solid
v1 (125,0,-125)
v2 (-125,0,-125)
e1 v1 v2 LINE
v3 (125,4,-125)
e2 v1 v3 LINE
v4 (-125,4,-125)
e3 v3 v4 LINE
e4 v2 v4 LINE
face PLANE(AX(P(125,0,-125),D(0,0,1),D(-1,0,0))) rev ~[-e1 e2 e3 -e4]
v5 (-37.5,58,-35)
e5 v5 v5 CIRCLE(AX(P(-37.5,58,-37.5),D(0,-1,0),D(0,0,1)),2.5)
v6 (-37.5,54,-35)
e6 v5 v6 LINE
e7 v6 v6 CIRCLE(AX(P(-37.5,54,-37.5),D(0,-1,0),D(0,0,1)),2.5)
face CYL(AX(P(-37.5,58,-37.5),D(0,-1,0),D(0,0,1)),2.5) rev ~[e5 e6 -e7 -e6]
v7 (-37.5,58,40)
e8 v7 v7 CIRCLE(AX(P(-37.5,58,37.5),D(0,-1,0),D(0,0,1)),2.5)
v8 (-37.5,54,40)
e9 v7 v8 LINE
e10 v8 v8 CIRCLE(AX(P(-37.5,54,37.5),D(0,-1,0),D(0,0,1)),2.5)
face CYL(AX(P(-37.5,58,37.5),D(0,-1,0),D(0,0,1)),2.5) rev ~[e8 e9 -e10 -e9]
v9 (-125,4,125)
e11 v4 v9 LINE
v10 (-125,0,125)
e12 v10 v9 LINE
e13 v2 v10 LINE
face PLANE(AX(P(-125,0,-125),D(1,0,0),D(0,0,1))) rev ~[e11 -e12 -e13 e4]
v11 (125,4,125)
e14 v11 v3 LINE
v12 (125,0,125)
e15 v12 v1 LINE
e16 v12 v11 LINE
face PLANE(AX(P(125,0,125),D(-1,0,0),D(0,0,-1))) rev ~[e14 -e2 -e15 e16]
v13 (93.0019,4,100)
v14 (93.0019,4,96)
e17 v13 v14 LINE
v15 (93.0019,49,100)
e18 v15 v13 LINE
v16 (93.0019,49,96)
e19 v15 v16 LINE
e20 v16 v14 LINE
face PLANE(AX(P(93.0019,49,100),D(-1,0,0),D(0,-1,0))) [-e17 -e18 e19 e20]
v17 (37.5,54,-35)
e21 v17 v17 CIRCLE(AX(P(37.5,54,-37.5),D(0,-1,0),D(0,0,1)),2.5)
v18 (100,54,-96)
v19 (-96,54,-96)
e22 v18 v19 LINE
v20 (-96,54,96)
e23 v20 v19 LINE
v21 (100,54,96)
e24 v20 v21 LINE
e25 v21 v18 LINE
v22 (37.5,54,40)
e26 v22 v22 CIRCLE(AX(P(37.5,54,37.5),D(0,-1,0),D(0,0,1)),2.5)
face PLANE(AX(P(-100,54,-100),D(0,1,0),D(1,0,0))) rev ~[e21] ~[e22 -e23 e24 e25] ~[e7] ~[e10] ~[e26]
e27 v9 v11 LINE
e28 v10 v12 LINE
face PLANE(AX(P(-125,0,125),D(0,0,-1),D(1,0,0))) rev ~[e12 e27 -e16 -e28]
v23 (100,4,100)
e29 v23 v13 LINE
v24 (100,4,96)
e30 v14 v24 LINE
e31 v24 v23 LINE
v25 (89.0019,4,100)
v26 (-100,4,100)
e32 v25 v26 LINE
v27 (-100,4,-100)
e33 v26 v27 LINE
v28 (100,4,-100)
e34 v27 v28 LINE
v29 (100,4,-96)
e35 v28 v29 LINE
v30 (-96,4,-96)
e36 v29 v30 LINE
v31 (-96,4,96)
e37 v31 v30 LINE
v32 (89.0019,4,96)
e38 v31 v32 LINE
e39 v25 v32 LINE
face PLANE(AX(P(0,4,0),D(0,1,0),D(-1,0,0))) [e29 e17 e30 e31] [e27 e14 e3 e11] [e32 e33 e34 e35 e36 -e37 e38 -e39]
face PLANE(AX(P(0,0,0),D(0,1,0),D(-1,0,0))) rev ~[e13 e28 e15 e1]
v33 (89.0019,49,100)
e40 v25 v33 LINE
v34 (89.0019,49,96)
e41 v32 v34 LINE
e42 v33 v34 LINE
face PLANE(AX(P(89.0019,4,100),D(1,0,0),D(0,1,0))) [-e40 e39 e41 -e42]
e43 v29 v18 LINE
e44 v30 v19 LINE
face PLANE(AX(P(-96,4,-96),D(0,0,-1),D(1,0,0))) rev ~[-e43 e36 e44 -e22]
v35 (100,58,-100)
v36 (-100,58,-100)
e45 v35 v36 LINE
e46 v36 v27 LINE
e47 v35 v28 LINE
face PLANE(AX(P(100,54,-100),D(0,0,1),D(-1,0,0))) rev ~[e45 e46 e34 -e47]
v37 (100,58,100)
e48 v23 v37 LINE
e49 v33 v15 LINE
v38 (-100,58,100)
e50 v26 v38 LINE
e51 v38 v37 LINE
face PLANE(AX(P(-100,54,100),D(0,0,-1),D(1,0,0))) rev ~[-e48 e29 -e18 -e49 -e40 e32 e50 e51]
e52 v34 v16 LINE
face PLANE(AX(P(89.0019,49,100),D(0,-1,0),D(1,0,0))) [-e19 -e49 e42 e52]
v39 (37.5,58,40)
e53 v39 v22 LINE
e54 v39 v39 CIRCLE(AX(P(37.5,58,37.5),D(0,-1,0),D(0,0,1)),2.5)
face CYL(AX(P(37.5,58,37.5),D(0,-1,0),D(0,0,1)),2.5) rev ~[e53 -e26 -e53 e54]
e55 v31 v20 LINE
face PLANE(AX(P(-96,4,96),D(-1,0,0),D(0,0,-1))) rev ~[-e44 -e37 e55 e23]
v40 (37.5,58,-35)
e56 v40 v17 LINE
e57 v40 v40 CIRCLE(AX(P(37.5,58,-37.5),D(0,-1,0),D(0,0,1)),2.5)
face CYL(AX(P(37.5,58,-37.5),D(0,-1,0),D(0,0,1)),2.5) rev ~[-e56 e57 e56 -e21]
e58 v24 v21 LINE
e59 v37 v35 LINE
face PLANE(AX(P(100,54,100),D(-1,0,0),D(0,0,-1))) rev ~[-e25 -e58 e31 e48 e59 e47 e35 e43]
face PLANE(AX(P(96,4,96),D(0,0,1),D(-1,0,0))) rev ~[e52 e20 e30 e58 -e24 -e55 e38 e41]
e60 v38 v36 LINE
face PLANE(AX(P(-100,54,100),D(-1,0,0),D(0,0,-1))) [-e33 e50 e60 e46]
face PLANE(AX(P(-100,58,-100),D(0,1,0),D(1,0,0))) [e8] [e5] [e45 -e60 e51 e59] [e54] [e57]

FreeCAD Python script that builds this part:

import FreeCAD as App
import Part
import Sketcher
from FreeCAD import Vector
Q = App.Units.Quantity

doc = App.newDocument("Part")
body = doc.addObject("PartDesign::Body", "Body")

sketch1 = body.newObject("Sketcher::SketchObject", "Sketch")
sketch1.AttachmentSupport = (doc.getObject("XZ_Plane"), [""])
sketch1.MapMode = "FlatFace"
sketch1.addGeometry(Part.LineSegment(Vector(125, 125, 0), Vector(125, -125, 0)), False)
sketch1.addGeometry(Part.LineSegment(Vector(125, -125, 0), Vector(-125, -125, 0)), False)
sketch1.addGeometry(Part.LineSegment(Vector(-125, -125, 0), Vector(-125, 125, 0)), False)
sketch1.addGeometry(Part.LineSegment(Vector(-125, 125, 0), Vector(125, 125, 0)), False)
sketch1.addConstraint(Sketcher.Constraint("Coincident", 0, 2, 1, 1))
sketch1.addConstraint(Sketcher.Constraint("Coincident", 1, 2, 2, 1))
sketch1.addConstraint(Sketcher.Constraint("Coincident", 2, 2, 3, 1))
sketch1.addConstraint(Sketcher.Constraint("Coincident", 3, 2, 0, 1))
sketch1.addConstraint(Sketcher.Constraint("Vertical", 0))
sketch1.addConstraint(Sketcher.Constraint("Horizontal", 1))
sketch1.addConstraint(Sketcher.Constraint("Vertical", 2))
sketch1.addConstraint(Sketcher.Constraint("Horizontal", 3))
sketch1.addConstraint(Sketcher.Constraint("Symmetric", 0, 2, 2, 2, -1, 1))
sketch1.addConstraint(Sketcher.Constraint("Equal", 3, 0))
sketch1.addConstraint(Sketcher.Constraint("DistanceX", 1, 2, 1, 1, Q("250 mm")))
pad1 = body.newObject("PartDesign::Pad", "Pad")
pad1.Profile = sketch1
pad1.Length = 4
pad1.Reversed = True

sketch2 = body.newObject("Sketcher::SketchObject", "Sketch001")
sketch2.AttachmentSupport = (doc.getObject("XZ_Plane"), [""])
sketch2.MapMode = "FlatFace"
sketch2.AttachmentOffset = App.Placement(Vector(0, 0, -4), App.Rotation())
sketch2.addGeometry(Part.LineSegment(Vector(100, 96, 0), Vector(-96, 96, 0)), False)
sketch2.addGeometry(Part.LineSegment(Vector(-96, 96, 0), Vector(-96, -96, 0)), False)
sketch2.addGeometry(Part.LineSegment(Vector(-96, -96, 0), Vector(100, -96, 0)), False)
sketch2.addGeometry(Part.LineSegment(Vector(100, -96, 0), Vector(100, -100, 0)), False)
sketch2.addGeometry(Part.LineSegment(Vector(100, -100, 0), Vector(-100, -100, 0)), False)
sketch2.addGeometry(Part.LineSegment(Vector(-100, -100, 0), Vector(-100, 100, 0)), False)
sketch2.addGeometry(Part.LineSegment(Vector(-100, 100, 0), Vector(100, 100, 0)), False)
sketch2.addGeometry(Part.LineSegment(Vector(100, 100, 0), Vector(100, 96, 0)), False)
sketch2.addConstraint(Sketcher.Constraint("Coincident", 0, 2, 1, 1))
sketch2.addConstraint(Sketcher.Constraint("Coincident", 1, 2, 2, 1))
sketch2.addConstraint(Sketcher.Constraint("Coincident", 2, 2, 3, 1))
sketch2.addConstraint(Sketcher.Constraint("Coincident", 3, 2, 4, 1))
sketch2.addConstraint(Sketcher.Constraint("Coincident", 4, 2, 5, 1))
sketch2.addConstraint(Sketcher.Constraint("Coincident", 5, 2, 6, 1))
sketch2.addConstraint(Sketcher.Constraint("Coincident", 6, 2, 7, 1))
sketch2.addConstraint(Sketcher.Constraint("Coincident", 7, 2, 0, 1))
sketch2.addConstraint(Sketcher.Constraint("Horizontal", 0))
sketch2.addConstraint(Sketcher.Constraint("Vertical", 1))
sketch2.addConstraint(Sketcher.Constraint("Horizontal", 2))
sketch2.addConstraint(Sketcher.Constraint("Vertical", 3))
sketch2.addConstraint(Sketcher.Constraint("Horizontal", 4))
sketch2.addConstraint(Sketcher.Constraint("Vertical", 5))
sketch2.addConstraint(Sketcher.Constraint("Horizontal", 6))
sketch2.addConstraint(Sketcher.Constraint("Vertical", 7))
sketch2.addConstraint(Sketcher.Constraint("Symmetric", 3, 2, 5, 2, -1, 1))
sketch2.addConstraint(Sketcher.Constraint("Symmetric", 2, 2, 7, 2, -1))
sketch2.addConstraint(Sketcher.Constraint("Equal", 6, 5))
sketch2.addConstraint(Sketcher.Constraint("DistanceX", 4, 2, 4, 1, Q("200 mm")))
sketch2.addConstraint(Sketcher.Constraint("DistanceY", 1, 2, 1, 1, Q("192 mm")))
sketch2.addConstraint(Sketcher.Constraint("DistanceX", 0, 2, 0, 1, Q("196 mm")))
pad2 = body.newObject("PartDesign::Pad", "Pad001")
pad2.Profile = sketch2
pad2.Length = 50
pad2.Reversed = True

sketch3 = body.newObject("Sketcher::SketchObject", "Sketch002")
sketch3.AttachmentSupport = (doc.getObject("XZ_Plane"), [""])
sketch3.MapMode = "FlatFace"
sketch3.AttachmentOffset = App.Placement(Vector(0, 0, -4), App.Rotation())
sketch3.addGeometry(Part.LineSegment(Vector(97, 96, 0), Vector(97, -96, 0)), False)
sketch3.addGeometry(Part.LineSegment(Vector(97, -96, 0), Vector(93, -96, 0)), False)
sketch3.addGeometry(Part.LineSegment(Vector(93, -96, 0), Vector(93, 96, 0)), False)
sketch3.addGeometry(Part.LineSegment(Vector(93, 96, 0), Vector(97, 96, 0)), False)
sketch3.addGeometry(Part.LineSegment(Vector(89, 96, 0), Vector(89, -96, 0)), False)
sketch3.addGeometry(Part.LineSegment(Vector(89, -96, 0), Vector(85, -96, 0)), False)
sketch3.addGeometry(Part.LineSegment(Vector(85, -96, 0), Vector(85, 96, 0)), False)
sketch3.addGeometry(Part.LineSegment(Vector(85, 96, 0), Vector(89, 96, 0)), False)
sketch3.addConstraint(Sketcher.Constraint("Coincident", 0, 2, 1, 1))
sketch3.addConstraint(Sketcher.Constraint("Coincident", 1, 2, 2, 1))
sketch3.addConstraint(Sketcher.Constraint("Coincident", 2, 2, 3, 1))
sketch3.addConstraint(Sketcher.Constraint("Coincident", 3, 2, 0, 1))
sketch3.addConstraint(Sketcher.Constraint("Coincident", 4, 2, 5, 1))
sketch3.addConstraint(Sketcher.Constraint("Coincident", 5, 2, 6, 1))
sketch3.addConstraint(Sketcher.Constraint("Coincident", 6, 2, 7, 1))
sketch3.addConstraint(Sketcher.Constraint("Coincident", 7, 2, 4, 1))
sketch3.addConstraint(Sketcher.Constraint("Vertical", 0))
sketch3.addConstraint(Sketcher.Constraint("Horizontal", 1))
sketch3.addConstraint(Sketcher.Constraint("Vertical", 2))
sketch3.addConstraint(Sketcher.Constraint("Horizontal", 3))
sketch3.addConstraint(Sketcher.Constraint("Vertical", 4))
sketch3.addConstraint(Sketcher.Constraint("Horizontal", 5))
sketch3.addConstraint(Sketcher.Constraint("Vertical", 6))
sketch3.addConstraint(Sketcher.Constraint("Horizontal", 7))
sketch3.addConstraint(Sketcher.Constraint("Horizontal", 1, 2, 4, 2))
sketch3.addConstraint(Sketcher.Constraint("Horizontal", 3, 2, 6, 2))
sketch3.addConstraint(Sketcher.Constraint("Equal", 3, 5))
sketch3.addConstraint(Sketcher.Constraint("DistanceX", 1, 2, 1, 1, Q("4 mm")))
sketch3.addConstraint(Sketcher.Constraint("DistanceX", 4, 2, 1, 2, Q("4 mm")))
sketch3.addConstraint(Sketcher.Constraint("DistanceY", 0, 2, 0, 1, Q("192 mm")))
sketch3.addConstraint(Sketcher.Constraint("DistanceX", -1, 1, 0, 2, Q("97 mm")))
sketch3.addConstraint(Sketcher.Constraint("DistanceY", 0, 2, -1, 1, Q("96 mm")))
pocket1 = body.newObject("PartDesign::Pocket", "Pocket")
pocket1.Profile = sketch3
pocket1.Length = 2

sketch4 = body.newObject("Sketcher::SketchObject", "Sketch003")
sketch4.AttachmentSupport = (doc.getObject("XY_Plane"), [""])
sketch4.MapMode = "FlatFace"
sketch4.AttachmentOffset = App.Placement(Vector(0, 0, 100), App.Rotation())
sketch4.addGeometry(Part.LineSegment(Vector(89, 49, 0), Vector(89, 4, 0)), False)
sketch4.addGeometry(Part.LineSegment(Vector(89, 4, 0), Vector(93, 4, 0)), False)
sketch4.addGeometry(Part.LineSegment(Vector(93, 4, 0), Vector(93, 49, 0)), False)
sketch4.addGeometry(Part.LineSegment(Vector(93, 49, 0), Vector(89, 49, 0)), False)
sketch4.addConstraint(Sketcher.Constraint("Coincident", 0, 2, 1, 1))
sketch4.addConstraint(Sketcher.Constraint("Coincident", 1, 2, 2, 1))
sketch4.addConstraint(Sketcher.Constraint("Coincident", 2, 2, 3, 1))
sketch4.addConstraint(Sketcher.Constraint("Coincident", 3, 2, 0, 1))
sketch4.addConstraint(Sketcher.Constraint("Vertical", 0))
sketch4.addConstraint(Sketcher.Constraint("Horizontal", 1))
sketch4.addConstraint(Sketcher.Constraint("Vertical", 2))
sketch4.addConstraint(Sketcher.Constraint("Horizontal", 3))
sketch4.addConstraint(Sketcher.Constraint("DistanceX", 1, 1, 1, 2, Q("4 mm")))
sketch4.addConstraint(Sketcher.Constraint("DistanceY", 0, 2, 0, 1, Q("45 mm")))
sketch4.addConstraint(Sketcher.Constraint("DistanceY", -1, 1, 0, 2, Q("4 mm")))
sketch4.addConstraint(Sketcher.Constraint("DistanceX", -1, 1, 0, 2, Q("89.002 mm")))
pocket2 = body.newObject("PartDesign::Pocket", "Pocket001")
pocket2.Profile = sketch4
pocket2.Length = 4

sketch5 = body.newObject("Sketcher::SketchObject", "Sketch004")
sketch5.AttachmentSupport = (doc.getObject("XZ_Plane"), [""])
sketch5.MapMode = "FlatFace"
sketch5.AttachmentOffset = App.Placement(Vector(0, 0, -54), App.Rotation())
sketch5.addGeometry(Part.LineSegment(Vector(-100, -100, 0), Vector(-100, 100, 0)), False)
sketch5.addGeometry(Part.LineSegment(Vector(-100, 100, 0), Vector(100, 100, 0)), False)
sketch5.addGeometry(Part.LineSegment(Vector(100, 100, 0), Vector(100, -100, 0)), False)
sketch5.addGeometry(Part.LineSegment(Vector(100, -100, 0), Vector(-100, -100, 0)), False)
sketch5.addConstraint(Sketcher.Constraint("Coincident", 0, 2, 1, 1))
sketch5.addConstraint(Sketcher.Constraint("Coincident", 1, 2, 2, 1))
sketch5.addConstraint(Sketcher.Constraint("Coincident", 2, 2, 3, 1))
sketch5.addConstraint(Sketcher.Constraint("Coincident", 3, 2, 0, 1))
sketch5.addConstraint(Sketcher.Constraint("Vertical", 0))
sketch5.addConstraint(Sketcher.Constraint("Horizontal", 1))
sketch5.addConstraint(Sketcher.Constraint("Vertical", 2))
sketch5.addConstraint(Sketcher.Constraint("Horizontal", 3))
sketch5.addConstraint(Sketcher.Constraint("Symmetric", 0, 2, 2, 2, -1, 1))
sketch5.addConstraint(Sketcher.Constraint("Equal", 3, 0))
sketch5.addConstraint(Sketcher.Constraint("DistanceX", 1, 1, 1, 2, Q("200 mm")))
pad3 = body.newObject("PartDesign::Pad", "Pad002")
pad3.Profile = sketch5
pad3.Length = 4
pad3.Reversed = True

sketch6 = body.newObject("Sketcher::SketchObject", "Sketch005")
sketch6.AttachmentSupport = (doc.getObject("XZ_Plane"), [""])
sketch6.MapMode = "FlatFace"
sketch6.AttachmentOffset = App.Placement(Vector(0, 0, -58), App.Rotation())
sketch6.addGeometry(Part.Circle(Vector(-37.5, -37.5, 0), Vector(0, 0, 1), 2.5), False)
sketch6.addGeometry(Part.Circle(Vector(37.5, -37.5, 0), Vector(0, 0, 1), 2.5), False)
sketch6.addGeometry(Part.Circle(Vector(37.5, 37.5, 0), Vector(0, 0, 1), 2.5), False)
sketch6.addGeometry(Part.Circle(Vector(-37.5, 37.5, 0), Vector(0, 0, 1), 2.5), False)
sketch6.addConstraint(Sketcher.Constraint("Equal", 0, 1))
sketch6.addConstraint(Sketcher.Constraint("Equal", 1, 2))
sketch6.addConstraint(Sketcher.Constraint("Equal", 2, 3))
sketch6.addConstraint(Sketcher.Constraint("Symmetric", 0, 3, 2, 3, -1, 1))
sketch6.addConstraint(Sketcher.Constraint("Symmetric", 1, 3, 3, 3, -1, 1))
sketch6.addConstraint(Sketcher.Constraint("Symmetric", 0, 3, 1, 3, -2))
sketch6.addConstraint(Sketcher.Constraint("Diameter", 0, Q("5 mm")))
sketch6.addConstraint(Sketcher.Constraint("DistanceX", 0, 3, 1, 3, Q("75 mm")))
sketch6.addConstraint(Sketcher.Constraint("DistanceY", 1, 3, 2, 3, Q("75 mm")))
doc.recompute()
hole = body.newObject("PartDesign::Hole", "Hole")
hole.Profile = sketch6
hole.ThreadType = "None"
hole.Diameter = 5
hole.DepthType = "Dimension"
hole.Depth = 4
hole.DrillPoint = "Flat"
hole.Reversed = True

doc.recompute()
